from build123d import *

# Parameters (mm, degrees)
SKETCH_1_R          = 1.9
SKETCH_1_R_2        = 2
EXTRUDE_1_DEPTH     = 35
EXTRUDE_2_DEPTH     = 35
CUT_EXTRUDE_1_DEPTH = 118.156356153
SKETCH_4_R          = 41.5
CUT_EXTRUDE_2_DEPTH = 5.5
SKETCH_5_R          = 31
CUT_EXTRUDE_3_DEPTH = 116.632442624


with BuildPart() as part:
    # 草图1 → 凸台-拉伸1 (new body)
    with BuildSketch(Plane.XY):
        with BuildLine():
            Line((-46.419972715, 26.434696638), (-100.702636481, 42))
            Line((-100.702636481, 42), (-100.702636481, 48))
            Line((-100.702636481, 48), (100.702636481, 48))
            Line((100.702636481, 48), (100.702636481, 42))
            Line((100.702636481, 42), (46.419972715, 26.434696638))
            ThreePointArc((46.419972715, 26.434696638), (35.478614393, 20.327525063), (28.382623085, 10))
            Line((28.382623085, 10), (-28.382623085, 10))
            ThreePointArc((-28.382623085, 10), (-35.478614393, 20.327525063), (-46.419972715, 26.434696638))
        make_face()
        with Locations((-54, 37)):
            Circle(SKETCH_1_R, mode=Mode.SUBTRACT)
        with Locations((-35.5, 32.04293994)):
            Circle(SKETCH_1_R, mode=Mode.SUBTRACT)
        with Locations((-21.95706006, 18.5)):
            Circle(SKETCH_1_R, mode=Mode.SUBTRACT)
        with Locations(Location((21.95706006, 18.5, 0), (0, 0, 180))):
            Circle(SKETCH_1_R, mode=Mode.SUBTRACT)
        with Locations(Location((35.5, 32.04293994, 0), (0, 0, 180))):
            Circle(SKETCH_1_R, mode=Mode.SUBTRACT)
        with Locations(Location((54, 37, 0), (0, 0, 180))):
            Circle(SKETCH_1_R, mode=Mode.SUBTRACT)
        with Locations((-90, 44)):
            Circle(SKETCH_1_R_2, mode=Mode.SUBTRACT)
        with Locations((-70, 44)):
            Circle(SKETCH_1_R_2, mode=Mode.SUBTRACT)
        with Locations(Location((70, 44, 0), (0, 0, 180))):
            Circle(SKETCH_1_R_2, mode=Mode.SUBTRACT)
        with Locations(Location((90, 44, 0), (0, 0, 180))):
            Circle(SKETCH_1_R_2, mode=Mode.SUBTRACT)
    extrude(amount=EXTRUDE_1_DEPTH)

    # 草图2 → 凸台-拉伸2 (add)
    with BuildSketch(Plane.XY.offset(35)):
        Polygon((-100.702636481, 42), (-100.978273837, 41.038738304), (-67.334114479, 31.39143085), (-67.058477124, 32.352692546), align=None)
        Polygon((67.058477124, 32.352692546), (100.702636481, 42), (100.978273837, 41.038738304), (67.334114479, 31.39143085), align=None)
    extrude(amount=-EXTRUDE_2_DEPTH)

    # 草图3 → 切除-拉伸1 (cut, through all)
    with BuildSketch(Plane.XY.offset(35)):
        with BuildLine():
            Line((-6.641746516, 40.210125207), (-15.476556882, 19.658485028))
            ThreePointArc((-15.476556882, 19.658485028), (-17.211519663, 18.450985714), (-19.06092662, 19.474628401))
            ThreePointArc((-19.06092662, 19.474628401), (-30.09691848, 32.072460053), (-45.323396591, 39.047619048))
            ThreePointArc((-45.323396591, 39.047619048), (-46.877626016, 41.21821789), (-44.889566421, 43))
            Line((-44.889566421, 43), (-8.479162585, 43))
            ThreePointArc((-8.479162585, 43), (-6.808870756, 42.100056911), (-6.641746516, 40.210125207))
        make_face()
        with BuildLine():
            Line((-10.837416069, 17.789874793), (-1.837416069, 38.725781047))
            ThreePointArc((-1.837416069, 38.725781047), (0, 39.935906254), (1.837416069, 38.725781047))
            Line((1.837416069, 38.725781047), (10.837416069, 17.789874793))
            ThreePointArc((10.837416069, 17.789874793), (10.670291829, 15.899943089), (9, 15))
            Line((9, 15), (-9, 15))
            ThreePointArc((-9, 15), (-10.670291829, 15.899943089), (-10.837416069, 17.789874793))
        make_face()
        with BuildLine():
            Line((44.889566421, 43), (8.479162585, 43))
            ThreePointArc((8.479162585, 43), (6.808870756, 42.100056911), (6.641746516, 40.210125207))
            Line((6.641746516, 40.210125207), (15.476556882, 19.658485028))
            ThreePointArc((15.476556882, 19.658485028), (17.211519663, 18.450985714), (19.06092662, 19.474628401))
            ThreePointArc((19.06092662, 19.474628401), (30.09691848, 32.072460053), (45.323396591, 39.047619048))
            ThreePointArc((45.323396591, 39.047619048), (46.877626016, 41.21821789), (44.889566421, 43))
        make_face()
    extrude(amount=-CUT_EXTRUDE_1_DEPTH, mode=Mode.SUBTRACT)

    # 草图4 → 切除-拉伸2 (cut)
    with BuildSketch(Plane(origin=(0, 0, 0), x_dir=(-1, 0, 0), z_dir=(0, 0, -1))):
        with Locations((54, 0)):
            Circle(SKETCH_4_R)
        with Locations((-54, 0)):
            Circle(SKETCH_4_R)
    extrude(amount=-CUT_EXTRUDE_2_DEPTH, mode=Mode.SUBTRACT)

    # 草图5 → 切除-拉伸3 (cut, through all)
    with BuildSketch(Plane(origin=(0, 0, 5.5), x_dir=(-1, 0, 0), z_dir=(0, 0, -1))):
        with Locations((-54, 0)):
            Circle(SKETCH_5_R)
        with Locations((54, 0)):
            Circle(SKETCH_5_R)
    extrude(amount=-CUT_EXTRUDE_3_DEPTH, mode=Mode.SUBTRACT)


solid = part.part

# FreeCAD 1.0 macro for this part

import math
import FreeCAD as App
import Part
import Sketcher
Q = App.Units.Quantity

doc = App.newDocument("Part")
body = doc.addObject("PartDesign::Body", "Body")

# Sketch on XY plane
sketch1 = body.newObject("Sketcher::SketchObject", "Sketch")
sketch1.AttachmentSupport = (doc.getObject("XY_Plane"), [""])
sketch1.MapMode = "FlatFace"
sketch1.addGeometry([
    Part.LineSegment(App.Vector(-100.702636, 42, 0), App.Vector(-46.419973, 26.434697, 0)),  # 0
    Part.ArcOfCircle(Part.Circle(App.Vector(-54, 0, 0), App.Vector(0, 0, 1), 27.5), math.radians(21.323686), math.radians(74)),  # 1
    Part.LineSegment(App.Vector(-28.382623, 10, 0), App.Vector(28.382623, 10, 0)),  # 2
    Part.ArcOfCircle(Part.Circle(App.Vector(54, 0, 0), App.Vector(0, 0, 1), 27.5), math.radians(106), math.radians(158.676314)),  # 3
    Part.LineSegment(App.Vector(46.419973, 26.434697, 0), App.Vector(100.702636, 42, 0)),  # 4
    Part.LineSegment(App.Vector(100.702636, 42, 0), App.Vector(100.702636, 48, 0)),  # 5
    Part.LineSegment(App.Vector(100.702636, 48, 0), App.Vector(-100.702636, 48, 0)),  # 6
    Part.LineSegment(App.Vector(-100.702636, 48, 0), App.Vector(-100.702636, 42, 0)),  # 7
    Part.Circle(App.Vector(21.95706, 18.5, 0), App.Vector(0, 0, 1), 1.9),  # 8
    Part.Circle(App.Vector(-21.95706, 18.5, 0), App.Vector(0, 0, 1), 1.9),  # 9
    Part.Circle(App.Vector(54, 37, 0), App.Vector(0, 0, 1), 1.9),  # 10
    Part.Circle(App.Vector(35.5, 32.04294, 0), App.Vector(0, 0, 1), 1.9),  # 11
    Part.Circle(App.Vector(90, 44, 0), App.Vector(0, 0, 1), 2),  # 12
    Part.Circle(App.Vector(70, 44, 0), App.Vector(0, 0, 1), 2),  # 13
    Part.Circle(App.Vector(-35.5, 32.04294, 0), App.Vector(0, 0, 1), 1.9),  # 14
    Part.Circle(App.Vector(-54, 37, 0), App.Vector(0, 0, 1), 1.9),  # 15
    Part.Circle(App.Vector(-70, 44, 0), App.Vector(0, 0, 1), 2),  # 16
    Part.Circle(App.Vector(-90, 44, 0), App.Vector(0, 0, 1), 2),  # 17
], False)
sketch1.addConstraint([
    Sketcher.Constraint("Tangent", 0, 2, 1, 2),
    Sketcher.Constraint("Coincident", 1, 1, 2, 1),
    Sketcher.Constraint("Coincident", 2, 2, 3, 2),
    Sketcher.Constraint("Tangent", 3, 1, 4, 1),
    Sketcher.Constraint("Coincident", 4, 2, 5, 1),
    Sketcher.Constraint("Coincident", 5, 2, 6, 1),
    Sketcher.Constraint("Coincident", 6, 2, 7, 1),
    Sketcher.Constraint("Coincident", 7, 2, 0, 1),
    Sketcher.Constraint("Horizontal", 2),
    Sketcher.Constraint("Vertical", 5),
    Sketcher.Constraint("Horizontal", 6),
    Sketcher.Constraint("Vertical", 7),
    Sketcher.Constraint("Equal", 1, 3),
    Sketcher.Constraint("Equal", 8, 9),
    Sketcher.Constraint("Equal", 9, 10),
    Sketcher.Constraint("Equal", 10, 11),
    Sketcher.Constraint("Equal", 12, 13),
    Sketcher.Constraint("Equal", 11, 14),
    Sketcher.Constraint("Equal", 14, 15),
    Sketcher.Constraint("Equal", 13, 16),
    Sketcher.Constraint("Equal", 16, 17),
    Sketcher.Constraint("Symmetric", 1, 3, 3, 3, -1, 1),
    Sketcher.Constraint("Symmetric", 8, 3, 9, 3, -2),
    Sketcher.Constraint("Symmetric", 11, 3, 14, 3, -2),
    Sketcher.Constraint("Symmetric", 10, 3, 15, 3, -2),
    Sketcher.Constraint("Symmetric", 13, 3, 16, 3, -2),
    Sketcher.Constraint("Symmetric", 12, 3, 17, 3, -2),
    Sketcher.Constraint("Symmetric", 0, 2, 3, 1, -2),
    Sketcher.Constraint("Horizontal", 12, 3, 13, 3),
    Sketcher.Constraint("Horizontal", 4, 2, 7, 2),
    Sketcher.Constraint("Vertical", 3, 3, 10, 3),
    Sketcher.Constraint("Diameter", 12, 4.0),
    Sketcher.Constraint("Diameter", 8, 3.8),
    Sketcher.Constraint("Radius", 1, 27.5),
    Sketcher.Constraint("DistanceY", 5, 1, 5, 2, 6.0),
    Sketcher.Constraint("Angle", 0, Q("-16 deg")),
    Sketcher.Constraint("DistanceX", 1, 3, -1, 1, 54.0),
    Sketcher.Constraint("DistanceY", -1, 1, 10, 3, 37.0),
    Sketcher.Constraint("DistanceX", -1, 1, 12, 3, 90.0),
    Sketcher.Constraint("DistanceY", -1, 1, 12, 3, 44.0),
    Sketcher.Constraint("DistanceX", -1, 1, 13, 3, 70.0),
    Sketcher.Constraint("DistanceY", -1, 1, 1, 1, 10.0),
    Sketcher.Constraint("DistanceY", -1, 1, 4, 2, 42.0),
    Sketcher.Constraint("DistanceX", 14, 3, 11, 3, 71.0),
    Sketcher.Constraint("DistanceY", -1, 1, 8, 3, 18.5),
    Sketcher.Constraint("DistanceX", -1, 1, 8, 3, 21.95706),
    Sketcher.Constraint("DistanceY", -1, 1, 11, 3, 32.04294),
])
pad1 = body.newObject("PartDesign::Pad", "Pad")
pad1.Profile = sketch1
pad1.Length = 35

# Sketch on XY plane
sketch2 = body.newObject("Sketcher::SketchObject", "Sketch001")
sketch2.AttachmentSupport = (doc.getObject("XY_Plane"), [""])
sketch2.MapMode = "FlatFace"
sketch2.AttachmentOffset = App.Placement(App.Vector(0, 0, 35), App.Rotation())
sketch2.addGeometry([
    Part.LineSegment(App.Vector(-100.702636, 42, 0), App.Vector(-100.978274, 41.038738, 0)),  # 0
    Part.LineSegment(App.Vector(-100.978274, 41.038738, 0), App.Vector(-67.334114, 31.391431, 0)),  # 1
    Part.LineSegment(App.Vector(-67.334114, 31.391431, 0), App.Vector(-67.058477, 32.352693, 0)),  # 2
    Part.LineSegment(App.Vector(-67.058477, 32.352693, 0), App.Vector(-100.702636, 42, 0)),  # 3
    Part.LineSegment(App.Vector(100.702636, 42, 0), App.Vector(67.058477, 32.352693, 0)),  # 4
    Part.LineSegment(App.Vector(67.058477, 32.352693, 0), App.Vector(67.334114, 31.391431, 0)),  # 5
    Part.LineSegment(App.Vector(67.334114, 31.391431, 0), App.Vector(100.978274, 41.038738, 0)),  # 6
    Part.LineSegment(App.Vector(100.978274, 41.038738, 0), App.Vector(100.702636, 42, 0)),  # 7
], False)
sketch2.addConstraint([
    Sketcher.Constraint("Coincident", 0, 2, 1, 1),
    Sketcher.Constraint("Coincident", 1, 2, 2, 1),
    Sketcher.Constraint("Coincident", 2, 2, 3, 1),
    Sketcher.Constraint("Coincident", 3, 2, 0, 1),
    Sketcher.Constraint("Coincident", 4, 2, 5, 1),
    Sketcher.Constraint("Coincident", 5, 2, 6, 1),
    Sketcher.Constraint("Coincident", 6, 2, 7, 1),
    Sketcher.Constraint("Coincident", 7, 2, 4, 1),
    Sketcher.Constraint("Symmetric", 2, 2, 4, 2, -2),
    Sketcher.Constraint("Symmetric", 1, 2, 5, 2, -2),
    Sketcher.Constraint("Symmetric", 0, 2, 6, 2, -2),
    Sketcher.Constraint("Symmetric", 3, 2, 7, 2, -2),
    Sketcher.Constraint("Perpendicular", 0, 1),
    Sketcher.Constraint("Perpendicular", 1, 2),
    Sketcher.Constraint("Perpendicular", 2, 3),
    Sketcher.Constraint("Angle", 0, Q("-106 deg")),
    Sketcher.Constraint("Distance", 0, 1.0),
    Sketcher.Constraint("Distance", 1, 35.0),
    Sketcher.Constraint("DistanceY", -1, 1, 3, 2, 42.0),
    Sketcher.Constraint("DistanceX", 1, 2, 4, 2, 134.392592),
])
pad2 = body.newObject("PartDesign::Pad", "Pad001")
pad2.Profile = sketch2
pad2.Length = 35
pad2.Reversed = True

# Sketch on XY plane
sketch3 = body.newObject("Sketcher::SketchObject", "Sketch002")
sketch3.AttachmentSupport = (doc.getObject("XY_Plane"), [""])
sketch3.MapMode = "FlatFace"
sketch3.AttachmentOffset = App.Placement(App.Vector(0, 0, 35), App.Rotation())
sketch3.addGeometry([
    Part.LineSegment(App.Vector(-15.476557, 19.658485, 0), App.Vector(-6.641747, 40.210125, 0)),  # 0
    Part.ArcOfCircle(Part.Circle(App.Vector(-8.479163, 41, 0), App.Vector(0, 0, 1), 2), math.radians(-23.26207), math.radians(90)),  # 1
    Part.LineSegment(App.Vector(-8.479163, 43, 0), App.Vector(-44.889566, 43, 0)),  # 2
    Part.ArcOfCircle(Part.Circle(App.Vector(-44.889566, 41, 0), App.Vector(0, 0, 1), 2), math.radians(90), math.radians(257.472095)),  # 3
    Part.ArcOfCircle(Part.Circle(App.Vector(-54, 0, 0), App.Vector(0, 0, 1), 40), math.radians(29.134781), math.radians(77.472095)),  # 4
    Part.ArcOfCircle(Part.Circle(App.Vector(-17.313973, 20.44836, 0), App.Vector(0, 0, 1), 2), math.radians(-150.865219), math.radians(-23.26207)),  # 5
    Part.LineSegment(App.Vector(-1.837416, 38.725781, 0), App.Vector(-10.837416, 17.789875, 0)),  # 6
    Part.ArcOfCircle(Part.Circle(App.Vector(-9, 17, 0), App.Vector(0, 0, 1), 2), math.radians(156.73793), math.radians(270)),  # 7
    Part.LineSegment(App.Vector(-9, 15, 0), App.Vector(9, 15, 0)),  # 8
    Part.ArcOfCircle(Part.Circle(App.Vector(9, 17, 0), App.Vector(0, 0, 1), 2), math.radians(-90), math.radians(23.26207)),  # 9
    Part.LineSegment(App.Vector(10.837416, 17.789875, 0), App.Vector(1.837416, 38.725781, 0)),  # 10
    Part.ArcOfCircle(Part.Circle(App.Vector(0, 37.935906, 0), App.Vector(0, 0, 1), 2), math.radians(23.26207), math.radians(156.73793)),  # 11
    Part.LineSegment(App.Vector(44.889566, 43, 0), App.Vector(8.479163, 43, 0)),  # 12
    Part.ArcOfCircle(Part.Circle(App.Vector(8.479163, 41, 0), App.Vector(0, 0, 1), 2), math.radians(90), math.radians(203.26207)),  # 13
    Part.LineSegment(App.Vector(6.641747, 40.210125, 0), App.Vector(15.476557, 19.658485, 0)),  # 14
    Part.ArcOfCircle(Part.Circle(App.Vector(17.313973, 20.44836, 0), App.Vector(0, 0, 1), 2), math.radians(-156.73793), math.radians(-29.134781)),  # 15
    Part.ArcOfCircle(Part.Circle(App.Vector(54, 0, 0), App.Vector(0, 0, 1), 40), math.radians(102.527905), math.radians(150.865219)),  # 16
    Part.ArcOfCircle(Part.Circle(App.Vector(44.889566, 41, 0), App.Vector(0, 0, 1), 2), math.radians(-77.472095), math.radians(90)),  # 17
], False)
sketch3.addConstraint([
    Sketcher.Constraint("Tangent", 0, 2, 1, 1),
    Sketcher.Constraint("Tangent", 1, 2, 2, 1),
    Sketcher.Constraint("Tangent", 2, 2, 3, 1),
    Sketcher.Constraint("Tangent", 3, 2, 4, 2),
    Sketcher.Constraint("Tangent", 4, 1, 5, 1),
    Sketcher.Constraint("Tangent", 5, 2, 0, 1),
    Sketcher.Constraint("Tangent", 6, 2, 7, 1),
    Sketcher.Constraint("Tangent", 7, 2, 8, 1),
    Sketcher.Constraint("Tangent", 8, 2, 9, 1),
    Sketcher.Constraint("Tangent", 9, 2, 10, 1),
    Sketcher.Constraint("Tangent", 10, 2, 11, 1),
    Sketcher.Constraint("Tangent", 11, 2, 6, 1),
    Sketcher.Constraint("Tangent", 12, 2, 13, 1),
    Sketcher.Constraint("Tangent", 13, 2, 14, 1),
    Sketcher.Constraint("Tangent", 14, 2, 15, 1),
    Sketcher.Constraint("Tangent", 15, 2, 16, 2),
    Sketcher.Constraint("Tangent", 16, 1, 17, 1),
    Sketcher.Constraint("Tangent", 17, 2, 12, 1),
    Sketcher.Constraint("Horizontal", 2),
    Sketcher.Constraint("Horizontal", 8),
    Sketcher.Constraint("Horizontal", 12),
    Sketcher.Constraint("Equal", 1, 3),
    Sketcher.Constraint("Equal", 3, 5),
    Sketcher.Constraint("Equal", 5, 7),
    Sketcher.Constraint("Equal", 7, 9),
    Sketcher.Constraint("Equal", 9, 11),
    Sketcher.Constraint("Equal", 11, 13),
    Sketcher.Constraint("Equal", 13, 15),
    Sketcher.Constraint("Equal", 4, 16),
    Sketcher.Constraint("Equal", 15, 17),
    Sketcher.Constraint("Symmetric", 4, 3, 16, 3, -1, 1),
    Sketcher.Constraint("Symmetric", 1, 3, 13, 3, -2),
    Sketcher.Constraint("Symmetric", 5, 3, 15, 3, -2),
    Sketcher.Constraint("Symmetric", 6, 2, 9, 2, -2),
    Sketcher.Constraint("Parallel", 0, 6),
    Sketcher.Constraint("Radius", 1, 2.0),
    Sketcher.Constraint("Radius", 4, 40.0),
    Sketcher.Constraint("DistanceX", 8, 1, 8, 2, 18.0),
    Sketcher.Constraint("DistanceY", -1, 1, 1, 3, 41.0),
    Sketcher.Constraint("DistanceX", 4, 3, -1, 1, 54.0),
    Sketcher.Constraint("DistanceY", -1, 1, 7, 3, 17.0),
    Sketcher.Constraint("Distance", 6, 22.788422),
    Sketcher.Constraint("DistanceX", 2, 2, 2, 1, 36.410404),
])
pocket1 = body.newObject("PartDesign::Pocket", "Pocket")
pocket1.Profile = sketch3
pocket1.Type = "ThroughAll"

# Sketch on XY plane
sketch4 = body.newObject("Sketcher::SketchObject", "Sketch003")
sketch4.AttachmentSupport = (doc.getObject("XY_Plane"), [""])
sketch4.MapMode = "FlatFace"
sketch4.addGeometry([
    Part.Circle(App.Vector(-54, 0, 0), App.Vector(0, 0, 1), 41.5),
    Part.Circle(App.Vector(54, 0, 0), App.Vector(0, 0, 1), 41.5),
], False)
sketch4.addConstraint([
    Sketcher.Constraint("Equal", 0, 1),
    Sketcher.Constraint("Symmetric", 0, 3, 1, 3, -1, 1),
    Sketcher.Constraint("PointOnObject", 0, 3, -1),
    Sketcher.Constraint("Diameter", 0, 83.0),
    Sketcher.Constraint("DistanceX", 0, 3, -1, 1, 54.0),
])
pocket2 = body.newObject("PartDesign::Pocket", "Pocket001")
pocket2.Profile = sketch4
pocket2.Length = 5.5
pocket2.Reversed = True

# Sketch on XY plane
sketch5 = body.newObject("Sketcher::SketchObject", "Sketch004")
sketch5.AttachmentSupport = (doc.getObject("XY_Plane"), [""])
sketch5.MapMode = "FlatFace"
sketch5.AttachmentOffset = App.Placement(App.Vector(0, 0, 5.5), App.Rotation())
sketch5.addGeometry([
    Part.Circle(App.Vector(54, 0, 0), App.Vector(0, 0, 1), 31),
    Part.Circle(App.Vector(-54, 0, 0), App.Vector(0, 0, 1), 31),
], False)
sketch5.addConstraint([
    Sketcher.Constraint("Equal", 0, 1),
    Sketcher.Constraint("Symmetric", 0, 3, 1, 3, -1, 1),
    Sketcher.Constraint("PointOnObject", 0, 3, -1),
    Sketcher.Constraint("Diameter", 0, 62.0),
    Sketcher.Constraint("DistanceX", -1, 1, 0, 3, 54.0),
])
pocket3 = body.newObject("PartDesign::Pocket", "Pocket002")
pocket3.Profile = sketch5
pocket3.Type = "ThroughAll"
pocket3.Reversed = True

doc.recompute()
